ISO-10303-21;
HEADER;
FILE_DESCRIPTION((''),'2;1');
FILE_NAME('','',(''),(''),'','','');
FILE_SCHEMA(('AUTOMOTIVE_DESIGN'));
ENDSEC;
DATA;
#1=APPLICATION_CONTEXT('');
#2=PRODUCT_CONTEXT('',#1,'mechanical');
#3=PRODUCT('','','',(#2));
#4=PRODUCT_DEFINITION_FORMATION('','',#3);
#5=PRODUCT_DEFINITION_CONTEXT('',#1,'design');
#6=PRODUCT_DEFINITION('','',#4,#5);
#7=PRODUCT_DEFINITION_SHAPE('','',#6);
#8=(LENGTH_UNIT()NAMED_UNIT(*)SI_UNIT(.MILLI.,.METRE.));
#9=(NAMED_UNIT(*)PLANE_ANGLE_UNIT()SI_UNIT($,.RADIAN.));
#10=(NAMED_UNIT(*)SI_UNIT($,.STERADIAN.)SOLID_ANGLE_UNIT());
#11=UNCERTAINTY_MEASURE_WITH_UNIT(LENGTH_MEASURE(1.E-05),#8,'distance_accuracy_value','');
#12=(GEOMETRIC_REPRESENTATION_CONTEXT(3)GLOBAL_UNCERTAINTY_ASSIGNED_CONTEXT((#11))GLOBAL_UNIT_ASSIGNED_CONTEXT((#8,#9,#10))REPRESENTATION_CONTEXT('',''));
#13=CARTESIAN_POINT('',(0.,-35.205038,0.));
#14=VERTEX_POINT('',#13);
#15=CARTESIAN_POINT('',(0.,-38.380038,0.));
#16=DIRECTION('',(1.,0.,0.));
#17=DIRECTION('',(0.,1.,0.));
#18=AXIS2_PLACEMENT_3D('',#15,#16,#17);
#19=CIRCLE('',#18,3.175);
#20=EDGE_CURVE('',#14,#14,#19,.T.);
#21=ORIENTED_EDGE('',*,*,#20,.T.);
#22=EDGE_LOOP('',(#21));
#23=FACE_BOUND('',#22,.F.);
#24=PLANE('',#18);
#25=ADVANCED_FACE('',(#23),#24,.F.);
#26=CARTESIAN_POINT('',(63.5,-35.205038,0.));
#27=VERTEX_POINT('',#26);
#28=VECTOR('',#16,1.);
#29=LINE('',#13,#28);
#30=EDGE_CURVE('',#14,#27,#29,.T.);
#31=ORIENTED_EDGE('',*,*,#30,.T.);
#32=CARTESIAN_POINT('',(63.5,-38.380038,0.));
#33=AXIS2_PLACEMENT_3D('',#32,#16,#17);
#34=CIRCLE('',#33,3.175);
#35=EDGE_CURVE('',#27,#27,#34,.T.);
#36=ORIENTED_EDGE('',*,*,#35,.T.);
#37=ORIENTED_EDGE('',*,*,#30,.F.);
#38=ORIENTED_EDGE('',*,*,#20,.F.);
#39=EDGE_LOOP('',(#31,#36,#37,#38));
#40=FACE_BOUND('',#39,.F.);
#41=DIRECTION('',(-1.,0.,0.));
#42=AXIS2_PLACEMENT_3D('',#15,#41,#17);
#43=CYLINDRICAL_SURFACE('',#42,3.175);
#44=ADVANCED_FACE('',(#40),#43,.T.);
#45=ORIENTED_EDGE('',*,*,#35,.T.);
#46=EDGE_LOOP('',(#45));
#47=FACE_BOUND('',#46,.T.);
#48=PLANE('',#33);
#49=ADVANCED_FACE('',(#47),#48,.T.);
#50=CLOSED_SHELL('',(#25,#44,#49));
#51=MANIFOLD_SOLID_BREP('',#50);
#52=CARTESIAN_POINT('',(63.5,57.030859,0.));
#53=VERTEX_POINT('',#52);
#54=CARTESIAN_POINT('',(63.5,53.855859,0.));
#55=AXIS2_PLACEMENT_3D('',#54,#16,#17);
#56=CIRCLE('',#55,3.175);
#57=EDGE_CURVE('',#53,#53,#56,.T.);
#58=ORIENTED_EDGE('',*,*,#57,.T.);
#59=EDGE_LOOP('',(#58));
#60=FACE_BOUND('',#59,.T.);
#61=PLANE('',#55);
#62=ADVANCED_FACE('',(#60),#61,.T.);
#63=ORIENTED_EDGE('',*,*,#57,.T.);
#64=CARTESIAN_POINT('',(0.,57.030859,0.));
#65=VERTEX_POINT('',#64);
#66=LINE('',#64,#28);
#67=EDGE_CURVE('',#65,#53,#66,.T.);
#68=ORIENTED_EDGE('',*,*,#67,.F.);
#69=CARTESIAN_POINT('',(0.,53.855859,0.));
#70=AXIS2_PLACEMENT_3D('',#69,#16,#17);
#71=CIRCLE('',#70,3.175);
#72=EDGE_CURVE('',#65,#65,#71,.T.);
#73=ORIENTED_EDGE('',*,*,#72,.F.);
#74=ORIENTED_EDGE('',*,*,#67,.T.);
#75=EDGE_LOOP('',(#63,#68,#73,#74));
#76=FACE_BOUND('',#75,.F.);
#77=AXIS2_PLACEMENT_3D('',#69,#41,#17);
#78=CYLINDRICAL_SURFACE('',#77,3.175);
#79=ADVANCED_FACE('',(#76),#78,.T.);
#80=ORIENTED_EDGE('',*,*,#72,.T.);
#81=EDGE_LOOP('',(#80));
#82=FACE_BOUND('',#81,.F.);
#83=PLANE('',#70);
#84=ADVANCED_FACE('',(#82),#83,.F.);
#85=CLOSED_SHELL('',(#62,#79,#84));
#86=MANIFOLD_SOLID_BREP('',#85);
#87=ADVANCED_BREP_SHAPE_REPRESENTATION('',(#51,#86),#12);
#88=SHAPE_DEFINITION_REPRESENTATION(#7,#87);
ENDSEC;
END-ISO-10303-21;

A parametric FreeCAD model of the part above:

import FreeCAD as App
import Part
import Sketcher

V = App.Vector
Q = App.Units.Quantity

doc = App.newDocument("Part")
params = doc.addObject("Spreadsheet::Sheet", "Params")
for row, (alias, value) in enumerate([
    ("sketch1_diameter", "0.25 in"),
    ("pad1_length", "2.5 in"),
    ("sketch2_diameter", "0.25 in"),
    ("pad2_length", "2.5 in"),
], start=1):
    params.set(f"A{row}", alias)
    params.set(f"B{row}", "=" + value)
    params.setAlias(f"B{row}", alias)

body = doc.addObject("PartDesign::Body", "Body")

# Sketch on YZ plane
sketch1 = body.newObject("Sketcher::SketchObject", "Sketch")
sketch1.AttachmentSupport = (doc.getObject("YZ_Plane"), [""])
sketch1.MapMode = "FlatFace"
sketch1.addGeometry(Part.Circle(V(-38.4, 0, 0), V(0, 0, 1), 3.2), False)
sketch1.addConstraint(Sketcher.Constraint("PointOnObject", 0, 3, -1))
sketch1.addConstraint(Sketcher.Constraint("Diameter", 0, Q("0.25 in")))
sketch1.addConstraint(Sketcher.Constraint("DistanceX", 0, 3, -1, 1, 38.380038))
sketch1.setExpression("Constraints[1]", "Params.sketch1_diameter")
pad1 = body.newObject("PartDesign::Pad", "Pad")
pad1.Profile = sketch1
pad1.setExpression("Length", "Params.pad1_length")
body2 = doc.addObject("PartDesign::Body", "Body001")

# Sketch on YZ plane
sketch2 = body2.newObject("Sketcher::SketchObject", "Sketch001")
sketch2.AttachmentSupport = (doc.getObject("YZ_Plane001"), [""])
sketch2.MapMode = "FlatFace"
sketch2.addGeometry(Part.Circle(V(53.9, 0, 0), V(0, 0, 1), 3.2), False)
sketch2.addConstraint(Sketcher.Constraint("PointOnObject", 0, 3, -1))
sketch2.addConstraint(Sketcher.Constraint("Diameter", 0, Q("0.25 in")))
sketch2.addConstraint(Sketcher.Constraint("DistanceX", -1, 1, 0, 3, 53.855859))
sketch2.setExpression("Constraints[1]", "Params.sketch2_diameter")
pad2 = body2.newObject("PartDesign::Pad", "Pad001")
pad2.Profile = sketch2
pad2.setExpression("Length", "Params.pad2_length")

doc.recompute()
